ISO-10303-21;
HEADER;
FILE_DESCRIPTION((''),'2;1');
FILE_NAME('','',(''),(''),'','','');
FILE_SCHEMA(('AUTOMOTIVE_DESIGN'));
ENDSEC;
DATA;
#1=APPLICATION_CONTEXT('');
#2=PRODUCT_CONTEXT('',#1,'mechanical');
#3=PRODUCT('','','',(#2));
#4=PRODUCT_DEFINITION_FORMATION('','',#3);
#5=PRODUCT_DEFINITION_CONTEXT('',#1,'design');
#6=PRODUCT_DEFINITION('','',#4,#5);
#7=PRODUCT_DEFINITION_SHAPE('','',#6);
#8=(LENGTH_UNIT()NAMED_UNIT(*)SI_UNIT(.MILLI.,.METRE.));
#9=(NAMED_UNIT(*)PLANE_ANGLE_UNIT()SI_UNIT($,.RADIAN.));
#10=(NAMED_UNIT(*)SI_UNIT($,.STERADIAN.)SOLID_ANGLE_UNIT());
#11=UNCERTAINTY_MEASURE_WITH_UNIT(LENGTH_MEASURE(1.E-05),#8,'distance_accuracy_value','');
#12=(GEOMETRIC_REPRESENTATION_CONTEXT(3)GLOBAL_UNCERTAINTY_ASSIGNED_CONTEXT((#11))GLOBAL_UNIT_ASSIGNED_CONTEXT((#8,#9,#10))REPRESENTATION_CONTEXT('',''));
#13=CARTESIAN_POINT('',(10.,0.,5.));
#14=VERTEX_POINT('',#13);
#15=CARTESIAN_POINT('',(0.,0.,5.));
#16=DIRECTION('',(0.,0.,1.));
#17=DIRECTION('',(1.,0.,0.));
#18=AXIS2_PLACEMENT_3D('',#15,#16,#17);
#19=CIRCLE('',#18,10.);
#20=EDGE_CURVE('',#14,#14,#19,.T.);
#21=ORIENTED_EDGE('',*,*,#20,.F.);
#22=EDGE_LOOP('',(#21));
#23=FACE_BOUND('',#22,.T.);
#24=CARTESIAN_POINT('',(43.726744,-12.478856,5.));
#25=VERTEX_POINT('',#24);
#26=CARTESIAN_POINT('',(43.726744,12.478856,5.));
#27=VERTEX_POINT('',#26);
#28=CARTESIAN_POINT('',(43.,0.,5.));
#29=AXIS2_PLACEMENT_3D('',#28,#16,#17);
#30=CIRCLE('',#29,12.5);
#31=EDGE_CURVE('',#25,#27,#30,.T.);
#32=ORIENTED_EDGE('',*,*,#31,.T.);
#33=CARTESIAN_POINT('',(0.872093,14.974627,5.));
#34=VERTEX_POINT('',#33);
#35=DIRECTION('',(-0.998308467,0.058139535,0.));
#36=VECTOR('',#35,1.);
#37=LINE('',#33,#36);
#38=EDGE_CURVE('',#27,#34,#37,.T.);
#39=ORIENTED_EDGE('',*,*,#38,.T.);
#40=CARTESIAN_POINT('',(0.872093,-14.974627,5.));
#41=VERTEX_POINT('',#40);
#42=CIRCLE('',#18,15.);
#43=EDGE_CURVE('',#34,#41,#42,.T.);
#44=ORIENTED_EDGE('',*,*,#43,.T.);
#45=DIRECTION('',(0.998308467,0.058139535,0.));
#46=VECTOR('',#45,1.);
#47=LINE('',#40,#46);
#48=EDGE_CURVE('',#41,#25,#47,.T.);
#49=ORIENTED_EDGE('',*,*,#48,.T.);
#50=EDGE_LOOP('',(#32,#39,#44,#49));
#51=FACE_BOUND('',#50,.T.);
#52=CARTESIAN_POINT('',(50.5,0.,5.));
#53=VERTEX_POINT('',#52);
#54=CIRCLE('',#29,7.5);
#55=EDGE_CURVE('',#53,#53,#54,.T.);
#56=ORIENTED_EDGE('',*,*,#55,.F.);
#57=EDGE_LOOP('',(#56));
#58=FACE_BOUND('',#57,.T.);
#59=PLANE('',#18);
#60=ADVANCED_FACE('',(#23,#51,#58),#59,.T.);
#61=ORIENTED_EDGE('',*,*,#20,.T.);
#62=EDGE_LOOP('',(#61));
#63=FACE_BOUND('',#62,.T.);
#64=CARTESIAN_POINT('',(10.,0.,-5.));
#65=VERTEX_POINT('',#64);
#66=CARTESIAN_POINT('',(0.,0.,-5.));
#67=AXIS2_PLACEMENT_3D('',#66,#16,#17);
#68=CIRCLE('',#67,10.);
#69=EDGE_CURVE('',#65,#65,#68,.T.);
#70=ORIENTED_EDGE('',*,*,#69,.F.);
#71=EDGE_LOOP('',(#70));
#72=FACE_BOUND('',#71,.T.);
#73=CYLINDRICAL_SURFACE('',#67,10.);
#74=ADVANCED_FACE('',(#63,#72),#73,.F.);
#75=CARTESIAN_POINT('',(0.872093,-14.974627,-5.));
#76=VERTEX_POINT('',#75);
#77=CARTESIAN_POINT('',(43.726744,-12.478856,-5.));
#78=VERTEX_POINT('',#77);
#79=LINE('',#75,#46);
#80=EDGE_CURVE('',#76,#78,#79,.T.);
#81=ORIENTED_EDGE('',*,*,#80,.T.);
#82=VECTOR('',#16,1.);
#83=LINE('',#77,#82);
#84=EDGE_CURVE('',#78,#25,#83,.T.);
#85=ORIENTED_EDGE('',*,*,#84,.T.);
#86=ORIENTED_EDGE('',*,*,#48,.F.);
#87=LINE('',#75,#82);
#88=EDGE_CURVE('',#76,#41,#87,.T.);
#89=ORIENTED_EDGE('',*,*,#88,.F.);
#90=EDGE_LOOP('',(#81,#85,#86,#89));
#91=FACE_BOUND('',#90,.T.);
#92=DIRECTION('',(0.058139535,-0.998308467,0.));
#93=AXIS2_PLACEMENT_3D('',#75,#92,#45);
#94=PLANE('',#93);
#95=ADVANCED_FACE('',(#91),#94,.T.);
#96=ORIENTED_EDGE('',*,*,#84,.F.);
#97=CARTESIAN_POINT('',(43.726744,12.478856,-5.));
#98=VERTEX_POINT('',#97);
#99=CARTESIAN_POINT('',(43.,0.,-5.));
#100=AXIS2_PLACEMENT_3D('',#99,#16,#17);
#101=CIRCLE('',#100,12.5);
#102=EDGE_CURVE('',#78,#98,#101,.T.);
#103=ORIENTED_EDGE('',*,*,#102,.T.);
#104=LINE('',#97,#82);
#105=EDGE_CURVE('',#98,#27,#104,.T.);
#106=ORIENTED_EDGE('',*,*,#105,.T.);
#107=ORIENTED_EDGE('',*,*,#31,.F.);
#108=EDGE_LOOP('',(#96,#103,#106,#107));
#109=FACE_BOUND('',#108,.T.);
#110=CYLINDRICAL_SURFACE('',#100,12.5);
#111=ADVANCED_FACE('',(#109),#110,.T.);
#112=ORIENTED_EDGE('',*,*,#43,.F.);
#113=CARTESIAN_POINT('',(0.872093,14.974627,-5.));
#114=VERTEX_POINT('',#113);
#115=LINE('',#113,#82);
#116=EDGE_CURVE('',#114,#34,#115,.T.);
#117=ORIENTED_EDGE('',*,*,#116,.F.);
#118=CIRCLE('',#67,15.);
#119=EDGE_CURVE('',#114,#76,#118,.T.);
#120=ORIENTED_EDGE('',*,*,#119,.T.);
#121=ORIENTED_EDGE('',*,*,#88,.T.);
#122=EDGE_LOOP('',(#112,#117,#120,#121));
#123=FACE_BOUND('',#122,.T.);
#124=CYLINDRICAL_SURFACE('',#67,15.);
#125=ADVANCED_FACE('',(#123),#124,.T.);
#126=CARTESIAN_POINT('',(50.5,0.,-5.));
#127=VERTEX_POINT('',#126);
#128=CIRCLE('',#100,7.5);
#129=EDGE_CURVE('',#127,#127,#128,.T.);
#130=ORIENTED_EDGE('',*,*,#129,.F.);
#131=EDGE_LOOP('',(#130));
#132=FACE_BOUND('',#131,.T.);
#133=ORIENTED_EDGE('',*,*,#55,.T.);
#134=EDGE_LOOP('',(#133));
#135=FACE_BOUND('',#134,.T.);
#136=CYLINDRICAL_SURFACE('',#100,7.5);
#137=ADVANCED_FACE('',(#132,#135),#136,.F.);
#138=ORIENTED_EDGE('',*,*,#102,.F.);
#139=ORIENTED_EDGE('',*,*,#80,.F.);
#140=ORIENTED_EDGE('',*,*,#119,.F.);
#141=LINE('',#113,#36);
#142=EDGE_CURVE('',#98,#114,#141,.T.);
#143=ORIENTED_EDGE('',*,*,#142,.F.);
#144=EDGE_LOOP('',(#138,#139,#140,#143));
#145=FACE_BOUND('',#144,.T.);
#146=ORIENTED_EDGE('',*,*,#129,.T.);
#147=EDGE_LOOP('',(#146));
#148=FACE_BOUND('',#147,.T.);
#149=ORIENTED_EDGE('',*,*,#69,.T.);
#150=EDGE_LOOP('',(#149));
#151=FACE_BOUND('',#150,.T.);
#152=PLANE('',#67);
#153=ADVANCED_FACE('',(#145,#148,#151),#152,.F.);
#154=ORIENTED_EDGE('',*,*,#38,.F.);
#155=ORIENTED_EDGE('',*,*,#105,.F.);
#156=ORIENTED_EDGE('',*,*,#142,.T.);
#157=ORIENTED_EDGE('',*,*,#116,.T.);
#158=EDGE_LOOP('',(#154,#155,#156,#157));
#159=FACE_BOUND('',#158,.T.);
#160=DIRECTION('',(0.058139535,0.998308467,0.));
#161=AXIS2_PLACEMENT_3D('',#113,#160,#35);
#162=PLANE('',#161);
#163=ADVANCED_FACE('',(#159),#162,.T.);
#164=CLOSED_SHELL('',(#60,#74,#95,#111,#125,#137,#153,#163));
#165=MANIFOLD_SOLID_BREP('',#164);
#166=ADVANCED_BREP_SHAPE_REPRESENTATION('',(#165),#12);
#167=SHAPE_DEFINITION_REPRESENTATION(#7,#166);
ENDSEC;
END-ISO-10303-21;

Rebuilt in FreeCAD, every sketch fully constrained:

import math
import FreeCAD as App
import Part
import Sketcher

V = App.Vector

doc = App.newDocument("Part")
body = doc.addObject("PartDesign::Body", "Body")

sketch1 = body.newObject("Sketcher::SketchObject", "Sketch")
sketch1.AttachmentSupport = (doc.getObject("XY_Plane"), [""])
sketch1.MapMode = "FlatFace"
sketch1.addGeometry([
    Part.LineSegment(V(44, 12, 0), V(1, 15, 0)),
    Part.ArcOfCircle(Part.Circle(V(0, 0, 0), V(0, 0, 1), 15), math.radians(87), math.radians(273)),
    Part.LineSegment(V(1, -15, 0), V(44, -12, 0)),
    Part.ArcOfCircle(Part.Circle(V(43, 0, 0), V(0, 0, 1), 12), math.radians(-87), math.radians(87)),
    Part.Circle(V(43, 0, 0), V(0, 0, 1), 8),
    Part.Circle(V(0, 0, 0), V(0, 0, 1), 10),
], False)
sketch1.addConstraint([
    Sketcher.Constraint("Tangent", 0, 2, 1, 1),
    Sketcher.Constraint("Tangent", 1, 2, 2, 1),
    Sketcher.Constraint("Tangent", 2, 2, 3, 1),
    Sketcher.Constraint("Tangent", 3, 2, 0, 1),
    Sketcher.Constraint("Coincident", 1, 3, -1, 1),
    Sketcher.Constraint("Coincident", 5, 3, -1, 1),
    Sketcher.Constraint("Coincident", 4, 3, 3, 3),
    Sketcher.Constraint("PointOnObject", 3, 3, -1),
    Sketcher.Constraint("Diameter", 4, 15.0),
    Sketcher.Constraint("Diameter", 5, 20.0),
    Sketcher.Constraint("Radius", 1, 15.0),
    Sketcher.Constraint("Radius", 3, 12.5),
    Sketcher.Constraint("DistanceX", -1, 1, 3, 3, 43.0),
])
pad1 = body.newObject("PartDesign::Pad", "Pad")
pad1.Profile = sketch1
pad1.Type = "TwoLengths"
pad1.Length = 5
pad1.Length2 = 5

doc.recompute()
